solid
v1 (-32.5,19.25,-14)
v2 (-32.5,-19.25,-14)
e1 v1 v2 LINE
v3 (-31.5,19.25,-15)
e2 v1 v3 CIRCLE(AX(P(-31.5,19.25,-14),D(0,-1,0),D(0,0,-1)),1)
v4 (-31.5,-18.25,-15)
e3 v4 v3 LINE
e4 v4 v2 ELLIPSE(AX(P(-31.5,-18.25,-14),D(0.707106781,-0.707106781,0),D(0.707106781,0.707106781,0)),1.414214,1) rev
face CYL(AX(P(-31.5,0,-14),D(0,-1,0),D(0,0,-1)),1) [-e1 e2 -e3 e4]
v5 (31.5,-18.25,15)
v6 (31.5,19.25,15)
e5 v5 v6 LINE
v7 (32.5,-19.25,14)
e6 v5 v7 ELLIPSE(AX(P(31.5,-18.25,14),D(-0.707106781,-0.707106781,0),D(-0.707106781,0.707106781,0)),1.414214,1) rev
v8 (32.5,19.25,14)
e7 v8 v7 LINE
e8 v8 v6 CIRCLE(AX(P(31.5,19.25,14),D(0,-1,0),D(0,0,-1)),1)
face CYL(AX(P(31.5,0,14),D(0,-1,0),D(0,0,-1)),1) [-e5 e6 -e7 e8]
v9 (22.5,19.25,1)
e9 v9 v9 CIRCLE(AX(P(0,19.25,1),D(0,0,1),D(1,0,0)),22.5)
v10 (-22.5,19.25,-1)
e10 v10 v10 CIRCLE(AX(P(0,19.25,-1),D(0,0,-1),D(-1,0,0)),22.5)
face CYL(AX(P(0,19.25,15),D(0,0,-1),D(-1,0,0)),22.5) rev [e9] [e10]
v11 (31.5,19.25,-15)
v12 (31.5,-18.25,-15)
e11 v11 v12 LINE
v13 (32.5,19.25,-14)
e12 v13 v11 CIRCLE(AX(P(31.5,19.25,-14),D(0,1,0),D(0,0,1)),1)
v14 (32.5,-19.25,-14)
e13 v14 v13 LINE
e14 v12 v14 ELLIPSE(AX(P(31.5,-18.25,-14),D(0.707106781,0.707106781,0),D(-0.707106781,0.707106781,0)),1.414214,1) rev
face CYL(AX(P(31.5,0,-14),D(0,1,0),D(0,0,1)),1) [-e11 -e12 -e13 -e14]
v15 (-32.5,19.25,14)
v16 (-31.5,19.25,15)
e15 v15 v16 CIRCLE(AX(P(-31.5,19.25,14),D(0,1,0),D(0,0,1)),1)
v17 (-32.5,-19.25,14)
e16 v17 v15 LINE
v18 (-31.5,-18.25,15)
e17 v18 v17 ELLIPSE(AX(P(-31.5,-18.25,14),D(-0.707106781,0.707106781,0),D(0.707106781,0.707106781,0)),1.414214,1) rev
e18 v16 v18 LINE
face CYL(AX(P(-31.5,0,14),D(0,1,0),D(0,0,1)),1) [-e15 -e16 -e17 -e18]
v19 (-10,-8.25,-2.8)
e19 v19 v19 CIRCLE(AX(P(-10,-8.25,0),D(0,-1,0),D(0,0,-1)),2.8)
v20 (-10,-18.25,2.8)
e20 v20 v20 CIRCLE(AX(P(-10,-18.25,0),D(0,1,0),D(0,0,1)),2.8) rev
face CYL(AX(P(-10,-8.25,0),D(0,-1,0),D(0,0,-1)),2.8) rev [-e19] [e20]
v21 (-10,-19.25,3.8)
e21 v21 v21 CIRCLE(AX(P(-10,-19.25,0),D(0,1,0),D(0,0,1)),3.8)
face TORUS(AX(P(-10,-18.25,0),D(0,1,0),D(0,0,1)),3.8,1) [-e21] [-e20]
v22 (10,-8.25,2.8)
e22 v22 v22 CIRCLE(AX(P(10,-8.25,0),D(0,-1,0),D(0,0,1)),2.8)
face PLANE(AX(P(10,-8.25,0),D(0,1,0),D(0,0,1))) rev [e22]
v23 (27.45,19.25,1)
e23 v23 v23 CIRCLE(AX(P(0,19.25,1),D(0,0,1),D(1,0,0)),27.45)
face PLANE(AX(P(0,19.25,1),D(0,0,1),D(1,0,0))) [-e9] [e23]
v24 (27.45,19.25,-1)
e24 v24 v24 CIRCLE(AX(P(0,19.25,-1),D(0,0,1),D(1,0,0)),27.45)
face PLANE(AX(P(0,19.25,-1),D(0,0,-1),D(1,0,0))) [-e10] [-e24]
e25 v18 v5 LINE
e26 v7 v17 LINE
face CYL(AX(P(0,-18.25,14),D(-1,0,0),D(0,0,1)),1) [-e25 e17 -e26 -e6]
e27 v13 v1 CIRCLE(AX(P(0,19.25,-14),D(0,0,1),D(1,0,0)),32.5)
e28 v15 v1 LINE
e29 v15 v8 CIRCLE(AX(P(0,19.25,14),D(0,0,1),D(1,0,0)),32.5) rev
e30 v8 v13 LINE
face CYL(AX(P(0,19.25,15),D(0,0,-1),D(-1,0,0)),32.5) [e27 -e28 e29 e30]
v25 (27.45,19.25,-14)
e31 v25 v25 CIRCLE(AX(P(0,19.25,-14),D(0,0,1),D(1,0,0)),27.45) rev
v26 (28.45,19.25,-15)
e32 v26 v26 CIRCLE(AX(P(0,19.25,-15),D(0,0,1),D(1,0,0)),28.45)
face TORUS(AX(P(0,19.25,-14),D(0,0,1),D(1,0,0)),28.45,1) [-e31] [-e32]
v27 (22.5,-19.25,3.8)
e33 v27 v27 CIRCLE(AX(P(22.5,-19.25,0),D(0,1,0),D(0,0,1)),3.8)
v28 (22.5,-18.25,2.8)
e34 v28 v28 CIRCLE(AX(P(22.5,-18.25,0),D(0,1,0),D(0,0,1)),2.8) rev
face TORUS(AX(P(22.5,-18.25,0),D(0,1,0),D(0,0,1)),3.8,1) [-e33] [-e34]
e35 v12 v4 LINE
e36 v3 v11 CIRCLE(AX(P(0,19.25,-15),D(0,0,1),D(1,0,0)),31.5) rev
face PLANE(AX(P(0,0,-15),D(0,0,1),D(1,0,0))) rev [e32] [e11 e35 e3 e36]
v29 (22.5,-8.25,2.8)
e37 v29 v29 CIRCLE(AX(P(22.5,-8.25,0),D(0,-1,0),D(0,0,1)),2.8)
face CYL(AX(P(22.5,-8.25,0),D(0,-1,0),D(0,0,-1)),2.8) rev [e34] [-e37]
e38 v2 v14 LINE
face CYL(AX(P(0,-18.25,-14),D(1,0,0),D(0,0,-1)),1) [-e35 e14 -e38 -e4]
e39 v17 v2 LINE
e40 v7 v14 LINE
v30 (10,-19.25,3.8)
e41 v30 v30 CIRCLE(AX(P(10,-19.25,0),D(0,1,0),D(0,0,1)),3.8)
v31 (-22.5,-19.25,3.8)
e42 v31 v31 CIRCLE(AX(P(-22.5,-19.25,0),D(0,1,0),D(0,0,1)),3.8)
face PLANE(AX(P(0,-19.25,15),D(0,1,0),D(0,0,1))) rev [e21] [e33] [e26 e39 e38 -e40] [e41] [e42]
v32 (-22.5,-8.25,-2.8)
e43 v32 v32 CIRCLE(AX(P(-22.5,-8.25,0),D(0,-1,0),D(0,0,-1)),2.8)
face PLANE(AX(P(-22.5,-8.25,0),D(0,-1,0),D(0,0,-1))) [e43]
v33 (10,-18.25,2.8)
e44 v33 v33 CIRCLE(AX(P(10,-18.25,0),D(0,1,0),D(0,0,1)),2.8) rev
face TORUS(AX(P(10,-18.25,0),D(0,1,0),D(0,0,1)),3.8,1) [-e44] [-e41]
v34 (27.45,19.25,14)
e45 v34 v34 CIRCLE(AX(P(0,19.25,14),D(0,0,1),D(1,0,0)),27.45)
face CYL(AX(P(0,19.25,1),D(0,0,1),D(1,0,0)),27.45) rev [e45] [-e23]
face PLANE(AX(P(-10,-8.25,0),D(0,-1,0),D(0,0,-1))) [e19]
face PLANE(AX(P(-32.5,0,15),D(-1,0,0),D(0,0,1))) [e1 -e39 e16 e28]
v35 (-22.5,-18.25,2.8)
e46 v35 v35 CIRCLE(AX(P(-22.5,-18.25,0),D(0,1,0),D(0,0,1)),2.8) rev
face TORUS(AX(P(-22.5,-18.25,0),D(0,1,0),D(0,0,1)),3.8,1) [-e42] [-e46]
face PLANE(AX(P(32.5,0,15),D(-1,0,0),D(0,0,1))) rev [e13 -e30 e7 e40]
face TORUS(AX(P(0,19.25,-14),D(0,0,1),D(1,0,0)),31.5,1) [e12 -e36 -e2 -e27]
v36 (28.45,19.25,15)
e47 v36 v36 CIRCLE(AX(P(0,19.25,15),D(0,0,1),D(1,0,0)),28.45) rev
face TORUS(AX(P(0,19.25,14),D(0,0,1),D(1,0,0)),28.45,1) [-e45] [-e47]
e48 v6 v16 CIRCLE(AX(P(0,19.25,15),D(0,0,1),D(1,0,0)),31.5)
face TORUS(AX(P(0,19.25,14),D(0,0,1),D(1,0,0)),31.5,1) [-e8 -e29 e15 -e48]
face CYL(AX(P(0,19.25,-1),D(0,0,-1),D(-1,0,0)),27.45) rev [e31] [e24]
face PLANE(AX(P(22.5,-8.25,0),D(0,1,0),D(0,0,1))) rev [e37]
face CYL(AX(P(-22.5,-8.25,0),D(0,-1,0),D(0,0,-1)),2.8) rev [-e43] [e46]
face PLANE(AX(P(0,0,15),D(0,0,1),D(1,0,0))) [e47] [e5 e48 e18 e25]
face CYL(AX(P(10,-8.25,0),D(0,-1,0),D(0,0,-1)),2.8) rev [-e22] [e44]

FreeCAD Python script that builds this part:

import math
import FreeCAD as App
import Part
import Sketcher

V = App.Vector


def edges_at(feature, points):
    """Names of the edges that pass closest to the given points."""
    edges = feature.Shape.Edges
    near = lambda p: min(range(len(edges)), key=lambda i: edges[i].distToShape(Part.Vertex(*p))[0])
    return sorted({f"Edge{near(p) + 1}" for p in points})

doc = App.newDocument("Part")
body = doc.addObject("PartDesign::Body", "Body")

# Sketch on XY plane
sketch1 = body.newObject("Sketcher::SketchObject", "Sketch")
sketch1.AttachmentSupport = (doc.getObject("XY_Plane"), [""])
sketch1.MapMode = "FlatFace"
sketch1.addGeometry(Part.ArcOfCircle(Part.Circle(V(0, 19, 0), V(0, 0, 1), 32), math.radians(0), math.radians(180)), False)
sketch1.addGeometry(Part.LineSegment(V(-32, 19, 0), V(-32, -19, 0)), False)
sketch1.addGeometry(Part.LineSegment(V(-32, -19, 0), V(32, -19, 0)), False)
sketch1.addGeometry(Part.LineSegment(V(32, -19, 0), V(32, 19, 0)), False)
sketch1.addGeometry(Part.Circle(V(0, 19, 0), V(0, 0, 1), 22), False)
sketch1.addConstraint(Sketcher.Constraint("Tangent", 0, 2, 1, 1))
sketch1.addConstraint(Sketcher.Constraint("Coincident", 1, 2, 2, 1))
sketch1.addConstraint(Sketcher.Constraint("Coincident", 2, 2, 3, 1))
sketch1.addConstraint(Sketcher.Constraint("Tangent", 3, 2, 0, 1))
sketch1.addConstraint(Sketcher.Constraint("Vertical", 1))
sketch1.addConstraint(Sketcher.Constraint("Horizontal", 2))
sketch1.addConstraint(Sketcher.Constraint("Vertical", 3))
sketch1.addConstraint(Sketcher.Constraint("Coincident", 4, 3, 0, 3))
sketch1.addConstraint(Sketcher.Constraint("Symmetric", 0, 2, 2, 2, -1, 1))
sketch1.addConstraint(Sketcher.Constraint("Diameter", 4, 45.0))
sketch1.addConstraint(Sketcher.Constraint("Radius", 0, 32.5))
sketch1.addConstraint(Sketcher.Constraint("DistanceY", 1, 2, 1, 1, 38.5))
pad1 = body.newObject("PartDesign::Pad", "Pad")
pad1.Profile = sketch1
pad1.Length = 30
pad1.Midplane = True

# Sketch on XY plane
sketch2 = body.newObject("Sketcher::SketchObject", "Sketch001")
sketch2.AttachmentSupport = (doc.getObject("XY_Plane"), [""])
sketch2.MapMode = "FlatFace"
sketch2.AttachmentOffset = App.Placement(V(0, 0, 15), App.Rotation())
sketch2.addGeometry(Part.Circle(V(0, 19, 0), V(0, 0, 1), 27), False)
sketch2.addConstraint(Sketcher.Constraint("PointOnObject", 0, 3, -2))
sketch2.addConstraint(Sketcher.Constraint("Diameter", 0, 54.9))
sketch2.addConstraint(Sketcher.Constraint("DistanceY", -1, 1, 0, 3, 19.25))
pocket1 = body.newObject("PartDesign::Pocket", "Pocket")
pocket1.Profile = sketch2
pocket1.Length = 14
doc.recompute()

mirrored = body.newObject("PartDesign::Mirrored", "Mirrored")
mirrored.Originals = [pocket1]
mirrored.MirrorPlane = (doc.getObject("XY_Plane"), [""])
body.Tip = mirrored

# Sketch on XZ plane
sketch3 = body.newObject("Sketcher::SketchObject", "Sketch002")
sketch3.AttachmentSupport = (doc.getObject("XZ_Plane"), [""])
sketch3.MapMode = "FlatFace"
sketch3.AttachmentOffset = App.Placement(V(0, 0, 19.25), App.Rotation())
sketch3.addGeometry(Part.Circle(V(-22.5, 0, 0), V(0, 0, 1), 2.8), False)
sketch3.addGeometry(Part.Circle(V(-10, 0, 0), V(0, 0, 1), 2.8), False)
sketch3.addGeometry(Part.Circle(V(10, 0, 0), V(0, 0, 1), 2.8), False)
sketch3.addGeometry(Part.Circle(V(22.5, 0, 0), V(0, 0, 1), 2.8), False)
sketch3.addConstraint(Sketcher.Constraint("Equal", 0, 1))
sketch3.addConstraint(Sketcher.Constraint("Equal", 1, 2))
sketch3.addConstraint(Sketcher.Constraint("Equal", 2, 3))
sketch3.addConstraint(Sketcher.Constraint("Symmetric", 1, 3, 2, 3, -1, 1))
sketch3.addConstraint(Sketcher.Constraint("Symmetric", 0, 3, 3, 3, -1, 1))
sketch3.addConstraint(Sketcher.Constraint("PointOnObject", 0, 3, -1))
sketch3.addConstraint(Sketcher.Constraint("PointOnObject", 1, 3, -1))
sketch3.addConstraint(Sketcher.Constraint("Diameter", 0, 5.6))
sketch3.addConstraint(Sketcher.Constraint("DistanceX", 1, 3, -1, 1, 10.0))
sketch3.addConstraint(Sketcher.Constraint("DistanceX", 0, 3, 3, 3, 45.0))
pocket2 = body.newObject("PartDesign::Pocket", "Pocket001")
pocket2.Profile = sketch3
pocket2.Length = 11
doc.recompute()

fillet = body.newObject("PartDesign::Fillet", "Fillet")
fillet.Base = (pocket2, edges_at(pocket2, [
    (-32.5, 0, 15),
    (0, -19.25, 15),
    (32.5, 0, 15),
    (-27.45, 19.25, 15),
    (-27.45, 19.25, -15),
    (-22.5, -19.25, 2.8),
    (-10, -19.25, 2.8),
    (10, -19.25, -2.8),
    (22.5, -19.25, -2.8),
    (0, 51.75, 15),
    (32.5, 0, -15),
    (0, -19.25, -15),
    (-32.5, 0, -15),
    (0, 51.75, -15),
]))
fillet.Radius = 1

doc.recompute()
